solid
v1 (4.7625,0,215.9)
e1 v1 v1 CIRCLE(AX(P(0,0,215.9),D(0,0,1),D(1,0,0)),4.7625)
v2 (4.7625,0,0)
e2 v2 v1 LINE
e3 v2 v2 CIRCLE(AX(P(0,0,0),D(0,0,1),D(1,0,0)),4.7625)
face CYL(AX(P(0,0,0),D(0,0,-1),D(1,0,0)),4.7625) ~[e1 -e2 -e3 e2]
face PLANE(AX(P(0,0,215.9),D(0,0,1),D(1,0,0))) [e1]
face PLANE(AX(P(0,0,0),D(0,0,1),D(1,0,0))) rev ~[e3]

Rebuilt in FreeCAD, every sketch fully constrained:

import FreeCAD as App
import Part
import Sketcher
from FreeCAD import Vector
Q = App.Units.Quantity

doc = App.newDocument("Part")
body = doc.addObject("PartDesign::Body", "Body")

# Sketch on XY plane
sketch1 = body.newObject("Sketcher::SketchObject", "Sketch")
sketch1.AttachmentSupport = (doc.getObject("XY_Plane"), [""])
sketch1.MapMode = "FlatFace"
sketch1.addGeometry(Part.Circle(Vector(0, 0, 0), Vector(0, 0, 1), 4.8), False)
sketch1.addConstraint([
    Sketcher.Constraint("Coincident", 0, 3, -1, 1),
    Sketcher.Constraint("Diameter", 0, Q("0.375 in")),
])
pad1 = body.newObject("PartDesign::Pad", "Pad")
pad1.Profile = sketch1
pad1.Length = Q("8.5 in")

doc.recompute()
